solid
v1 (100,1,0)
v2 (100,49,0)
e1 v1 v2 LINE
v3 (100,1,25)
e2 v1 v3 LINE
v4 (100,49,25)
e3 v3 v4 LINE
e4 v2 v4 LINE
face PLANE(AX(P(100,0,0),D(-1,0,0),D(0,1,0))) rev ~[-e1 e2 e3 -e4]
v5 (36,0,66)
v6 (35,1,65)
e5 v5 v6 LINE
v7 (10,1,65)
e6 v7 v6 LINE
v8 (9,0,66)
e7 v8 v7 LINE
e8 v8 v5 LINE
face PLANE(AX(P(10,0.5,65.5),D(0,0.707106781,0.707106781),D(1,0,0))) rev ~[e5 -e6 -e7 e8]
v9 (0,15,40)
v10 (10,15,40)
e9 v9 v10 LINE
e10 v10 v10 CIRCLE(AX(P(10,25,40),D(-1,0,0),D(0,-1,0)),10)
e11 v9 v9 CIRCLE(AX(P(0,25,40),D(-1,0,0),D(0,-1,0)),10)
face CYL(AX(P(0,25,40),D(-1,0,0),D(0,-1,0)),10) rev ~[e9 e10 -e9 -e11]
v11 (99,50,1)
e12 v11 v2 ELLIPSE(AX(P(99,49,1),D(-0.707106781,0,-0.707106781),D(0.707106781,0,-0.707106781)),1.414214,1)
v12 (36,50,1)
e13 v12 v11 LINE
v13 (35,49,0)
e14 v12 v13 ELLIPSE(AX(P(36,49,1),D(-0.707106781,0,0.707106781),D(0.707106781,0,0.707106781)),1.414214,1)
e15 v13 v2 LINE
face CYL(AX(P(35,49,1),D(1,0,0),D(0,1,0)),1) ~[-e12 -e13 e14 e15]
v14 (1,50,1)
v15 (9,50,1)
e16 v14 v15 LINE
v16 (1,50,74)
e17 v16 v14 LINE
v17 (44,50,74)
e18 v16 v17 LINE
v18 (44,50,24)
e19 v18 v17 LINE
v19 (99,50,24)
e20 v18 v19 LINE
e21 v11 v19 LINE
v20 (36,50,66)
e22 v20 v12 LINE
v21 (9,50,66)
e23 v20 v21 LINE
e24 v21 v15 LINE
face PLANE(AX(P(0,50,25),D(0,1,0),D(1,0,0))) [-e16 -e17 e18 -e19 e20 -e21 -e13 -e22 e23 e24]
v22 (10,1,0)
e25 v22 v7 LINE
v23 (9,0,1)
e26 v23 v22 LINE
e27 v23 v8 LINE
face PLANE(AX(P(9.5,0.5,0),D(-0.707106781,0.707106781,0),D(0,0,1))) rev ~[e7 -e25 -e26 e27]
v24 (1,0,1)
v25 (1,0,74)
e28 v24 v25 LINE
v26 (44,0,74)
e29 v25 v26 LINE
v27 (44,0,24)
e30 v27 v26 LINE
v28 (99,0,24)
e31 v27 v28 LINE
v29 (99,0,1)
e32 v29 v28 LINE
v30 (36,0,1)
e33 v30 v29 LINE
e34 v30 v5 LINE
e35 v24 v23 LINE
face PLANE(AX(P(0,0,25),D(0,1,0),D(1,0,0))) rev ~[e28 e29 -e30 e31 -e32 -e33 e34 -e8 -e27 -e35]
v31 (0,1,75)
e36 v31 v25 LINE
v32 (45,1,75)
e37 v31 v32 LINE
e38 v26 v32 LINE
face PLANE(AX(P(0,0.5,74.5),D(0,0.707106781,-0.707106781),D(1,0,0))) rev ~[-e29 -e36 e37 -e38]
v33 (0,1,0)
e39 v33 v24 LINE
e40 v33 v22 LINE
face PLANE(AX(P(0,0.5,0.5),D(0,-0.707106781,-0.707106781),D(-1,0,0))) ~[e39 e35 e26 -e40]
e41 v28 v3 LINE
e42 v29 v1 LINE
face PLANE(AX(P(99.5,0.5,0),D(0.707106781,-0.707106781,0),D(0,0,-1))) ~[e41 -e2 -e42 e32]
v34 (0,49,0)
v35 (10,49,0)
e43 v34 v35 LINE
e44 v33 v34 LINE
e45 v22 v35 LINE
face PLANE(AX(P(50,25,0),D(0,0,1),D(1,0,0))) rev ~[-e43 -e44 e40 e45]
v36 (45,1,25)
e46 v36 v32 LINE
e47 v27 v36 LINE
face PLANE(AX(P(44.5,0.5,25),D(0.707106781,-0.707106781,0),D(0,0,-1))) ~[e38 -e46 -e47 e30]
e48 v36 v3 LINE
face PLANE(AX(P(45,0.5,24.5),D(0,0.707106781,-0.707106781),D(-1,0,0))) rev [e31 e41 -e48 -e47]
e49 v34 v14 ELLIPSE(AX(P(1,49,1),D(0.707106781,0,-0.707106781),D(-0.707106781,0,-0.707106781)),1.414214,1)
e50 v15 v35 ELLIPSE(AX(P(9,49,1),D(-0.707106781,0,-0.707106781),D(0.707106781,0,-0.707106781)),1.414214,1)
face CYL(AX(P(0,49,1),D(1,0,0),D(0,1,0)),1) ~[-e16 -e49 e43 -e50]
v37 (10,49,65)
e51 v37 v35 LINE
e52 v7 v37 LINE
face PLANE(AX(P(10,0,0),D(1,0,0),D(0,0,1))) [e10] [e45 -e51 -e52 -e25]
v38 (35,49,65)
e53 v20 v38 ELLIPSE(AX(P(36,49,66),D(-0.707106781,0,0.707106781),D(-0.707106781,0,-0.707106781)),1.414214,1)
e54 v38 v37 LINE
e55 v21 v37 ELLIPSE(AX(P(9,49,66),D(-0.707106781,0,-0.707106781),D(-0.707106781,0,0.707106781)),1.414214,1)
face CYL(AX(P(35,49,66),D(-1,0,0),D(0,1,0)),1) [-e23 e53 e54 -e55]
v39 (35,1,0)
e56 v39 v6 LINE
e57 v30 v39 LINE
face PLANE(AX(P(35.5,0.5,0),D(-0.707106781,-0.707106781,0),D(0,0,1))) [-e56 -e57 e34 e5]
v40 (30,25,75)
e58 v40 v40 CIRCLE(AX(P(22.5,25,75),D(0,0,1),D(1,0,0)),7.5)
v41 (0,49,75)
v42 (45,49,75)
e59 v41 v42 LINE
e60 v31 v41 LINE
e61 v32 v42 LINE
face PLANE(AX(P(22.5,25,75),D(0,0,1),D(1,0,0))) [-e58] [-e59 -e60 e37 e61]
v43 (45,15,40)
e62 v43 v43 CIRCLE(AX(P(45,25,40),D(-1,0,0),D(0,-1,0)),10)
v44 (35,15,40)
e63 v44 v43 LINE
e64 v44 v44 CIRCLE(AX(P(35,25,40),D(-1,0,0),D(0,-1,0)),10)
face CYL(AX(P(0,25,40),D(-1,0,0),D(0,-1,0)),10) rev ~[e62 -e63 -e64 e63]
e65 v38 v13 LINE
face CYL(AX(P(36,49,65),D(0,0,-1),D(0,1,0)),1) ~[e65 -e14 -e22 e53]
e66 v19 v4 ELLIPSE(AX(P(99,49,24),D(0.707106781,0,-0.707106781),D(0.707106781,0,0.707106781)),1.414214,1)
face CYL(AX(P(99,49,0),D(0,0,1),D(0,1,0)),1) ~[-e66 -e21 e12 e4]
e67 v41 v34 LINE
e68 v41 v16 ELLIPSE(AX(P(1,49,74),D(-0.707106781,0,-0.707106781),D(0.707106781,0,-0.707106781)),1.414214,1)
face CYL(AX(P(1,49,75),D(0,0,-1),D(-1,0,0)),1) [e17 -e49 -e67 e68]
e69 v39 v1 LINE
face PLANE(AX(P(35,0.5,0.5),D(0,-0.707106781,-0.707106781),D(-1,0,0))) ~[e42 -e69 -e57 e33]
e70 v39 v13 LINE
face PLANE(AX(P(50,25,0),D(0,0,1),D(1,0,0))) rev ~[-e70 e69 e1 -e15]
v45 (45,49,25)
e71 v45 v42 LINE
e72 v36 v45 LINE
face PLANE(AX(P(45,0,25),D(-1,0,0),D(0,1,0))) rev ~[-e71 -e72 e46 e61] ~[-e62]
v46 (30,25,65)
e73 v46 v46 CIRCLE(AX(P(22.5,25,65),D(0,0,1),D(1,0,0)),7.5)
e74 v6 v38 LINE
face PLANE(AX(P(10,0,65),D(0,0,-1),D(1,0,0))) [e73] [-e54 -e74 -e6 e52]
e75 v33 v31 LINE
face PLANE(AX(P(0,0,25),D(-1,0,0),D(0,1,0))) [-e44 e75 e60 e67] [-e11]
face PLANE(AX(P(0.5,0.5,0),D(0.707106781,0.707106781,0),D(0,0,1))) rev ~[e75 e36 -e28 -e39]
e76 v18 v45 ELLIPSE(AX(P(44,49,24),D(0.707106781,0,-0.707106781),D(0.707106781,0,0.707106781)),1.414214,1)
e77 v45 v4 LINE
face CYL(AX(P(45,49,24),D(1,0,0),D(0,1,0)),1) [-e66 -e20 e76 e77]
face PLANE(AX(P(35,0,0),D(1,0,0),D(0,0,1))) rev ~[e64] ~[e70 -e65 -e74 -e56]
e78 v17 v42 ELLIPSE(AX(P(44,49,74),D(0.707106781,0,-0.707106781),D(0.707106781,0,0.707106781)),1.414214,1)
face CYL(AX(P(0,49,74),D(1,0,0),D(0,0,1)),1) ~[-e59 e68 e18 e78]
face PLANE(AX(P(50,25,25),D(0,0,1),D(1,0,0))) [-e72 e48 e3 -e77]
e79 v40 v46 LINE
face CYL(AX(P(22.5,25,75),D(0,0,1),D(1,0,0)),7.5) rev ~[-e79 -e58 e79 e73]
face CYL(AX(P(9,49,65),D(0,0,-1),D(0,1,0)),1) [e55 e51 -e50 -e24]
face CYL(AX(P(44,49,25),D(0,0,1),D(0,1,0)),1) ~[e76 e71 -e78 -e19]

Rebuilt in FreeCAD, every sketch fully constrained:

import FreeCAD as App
import Part
import Sketcher
from FreeCAD import Vector


def edges_at(feature, points):
    """Names of the edges that pass closest to the given points."""
    edges = feature.Shape.Edges
    near = lambda p: min(range(len(edges)), key=lambda i: edges[i].distToShape(Part.Vertex(*p))[0])
    return sorted({f"Edge{near(p) + 1}" for p in points})

doc = App.newDocument("Part")
body = doc.addObject("PartDesign::Body", "Body")

# Sketch on XY plane
sketch1 = body.newObject("Sketcher::SketchObject", "Sketch")
sketch1.AttachmentSupport = (doc.getObject("XY_Plane"), [""])
sketch1.MapMode = "FlatFace"
sketch1.addGeometry([
    Part.LineSegment(Vector(0, 50, 0), Vector(0, 0, 0)),
    Part.LineSegment(Vector(0, 0, 0), Vector(100, 0, 0)),
    Part.LineSegment(Vector(100, 0, 0), Vector(100, 50, 0)),
    Part.LineSegment(Vector(100, 50, 0), Vector(0, 50, 0)),
], False)
sketch1.addConstraint([
    Sketcher.Constraint("Coincident", 0, 2, 1, 1),
    Sketcher.Constraint("Coincident", 1, 2, 2, 1),
    Sketcher.Constraint("Coincident", 2, 2, 3, 1),
    Sketcher.Constraint("Coincident", 3, 2, 0, 1),
    Sketcher.Constraint("Vertical", 0),
    Sketcher.Constraint("Horizontal", 1),
    Sketcher.Constraint("Vertical", 2),
    Sketcher.Constraint("Horizontal", 3),
    Sketcher.Constraint("Coincident", 0, 2, -1, 1),
    Sketcher.Constraint("DistanceX", 1, 1, 1, 2, 100.0),
    Sketcher.Constraint("DistanceY", 0, 2, 0, 1, 50.0),
])
pad1 = body.newObject("PartDesign::Pad", "Pad")
pad1.Profile = sketch1
pad1.Length = 25

# Sketch on XY plane
sketch2 = body.newObject("Sketcher::SketchObject", "Sketch001")
sketch2.AttachmentSupport = (doc.getObject("XY_Plane"), [""])
sketch2.MapMode = "FlatFace"
sketch2.AttachmentOffset = App.Placement(Vector(0, 0, 25), App.Rotation())
sketch2.addGeometry([
    Part.LineSegment(Vector(0, 50, 0), Vector(0, 0, 0)),
    Part.LineSegment(Vector(0, 0, 0), Vector(45, 0, 0)),
    Part.LineSegment(Vector(45, 0, 0), Vector(45, 50, 0)),
    Part.LineSegment(Vector(45, 50, 0), Vector(0, 50, 0)),
], False)
sketch2.addConstraint([
    Sketcher.Constraint("Coincident", 0, 2, 1, 1),
    Sketcher.Constraint("Coincident", 1, 2, 2, 1),
    Sketcher.Constraint("Coincident", 2, 2, 3, 1),
    Sketcher.Constraint("Coincident", 3, 2, 0, 1),
    Sketcher.Constraint("Vertical", 0),
    Sketcher.Constraint("Horizontal", 1),
    Sketcher.Constraint("Vertical", 2),
    Sketcher.Constraint("Horizontal", 3),
    Sketcher.Constraint("Coincident", 0, 2, -1, 1),
    Sketcher.Constraint("DistanceX", 1, 1, 1, 2, 45.0),
    Sketcher.Constraint("DistanceY", 0, 2, 0, 1, 50.0),
])
pad2 = body.newObject("PartDesign::Pad", "Pad001")
pad2.Profile = sketch2
pad2.Length = 50

# Sketch on XZ plane
sketch3 = body.newObject("Sketcher::SketchObject", "Sketch002")
sketch3.AttachmentSupport = (doc.getObject("XZ_Plane"), [""])
sketch3.MapMode = "FlatFace"
sketch3.addGeometry([
    Part.LineSegment(Vector(10, 65, 0), Vector(10, 0, 0)),
    Part.LineSegment(Vector(10, 0, 0), Vector(35, 0, 0)),
    Part.LineSegment(Vector(35, 0, 0), Vector(35, 65, 0)),
    Part.LineSegment(Vector(35, 65, 0), Vector(10, 65, 0)),
], False)
sketch3.addConstraint([
    Sketcher.Constraint("Coincident", 0, 2, 1, 1),
    Sketcher.Constraint("Coincident", 1, 2, 2, 1),
    Sketcher.Constraint("Coincident", 2, 2, 3, 1),
    Sketcher.Constraint("Coincident", 3, 2, 0, 1),
    Sketcher.Constraint("Vertical", 0),
    Sketcher.Constraint("Horizontal", 1),
    Sketcher.Constraint("Vertical", 2),
    Sketcher.Constraint("Horizontal", 3),
    Sketcher.Constraint("PointOnObject", 0, 2, -1),
    Sketcher.Constraint("DistanceX", 1, 1, 1, 2, 25.0),
    Sketcher.Constraint("DistanceY", 0, 2, 0, 1, 65.0),
    Sketcher.Constraint("DistanceX", -1, 1, 0, 2, 10.0),
])
pocket1 = body.newObject("PartDesign::Pocket", "Pocket")
pocket1.Profile = sketch3
pocket1.Type = "ThroughAll"

# Sketch on YZ plane
sketch4 = body.newObject("Sketcher::SketchObject", "Sketch003")
sketch4.AttachmentSupport = (doc.getObject("YZ_Plane"), [""])
sketch4.MapMode = "FlatFace"
sketch4.addGeometry(Part.Circle(Vector(25, 40, 0), Vector(0, 0, 1), 10), False)
sketch4.addConstraint([
    Sketcher.Constraint("Diameter", 0, 20.0),
    Sketcher.Constraint("DistanceX", -1, 1, 0, 3, 25.0),
    Sketcher.Constraint("DistanceY", -1, 1, 0, 3, 40.0),
])
pocket2 = body.newObject("PartDesign::Pocket", "Pocket001")
pocket2.Profile = sketch4
pocket2.Type = "ThroughAll"
pocket2.Reversed = True

# Sketch on XY plane
sketch5 = body.newObject("Sketcher::SketchObject", "Sketch004")
sketch5.AttachmentSupport = (doc.getObject("XY_Plane"), [""])
sketch5.MapMode = "FlatFace"
sketch5.AttachmentOffset = App.Placement(Vector(0, 0, 75), App.Rotation())
sketch5.addGeometry(Part.Circle(Vector(22, 25, 0), Vector(0, 0, 1), 8), False)
sketch5.addConstraint([
    Sketcher.Constraint("Diameter", 0, 15.0),
    Sketcher.Constraint("DistanceY", -1, 1, 0, 3, 25.0),
    Sketcher.Constraint("DistanceX", -1, 1, 0, 3, 22.5),
])
pocket3 = body.newObject("PartDesign::Pocket", "Pocket002")
pocket3.Profile = sketch5
pocket3.Type = "ThroughAll"
doc.recompute()

chamfer = body.newObject("PartDesign::Chamfer", "Chamfer")
chamfer.Base = (pocket3, edges_at(pocket3, [
    (0, 0, 37.5),
    (35, 0, 32.5),
    (22.5, 0, 65),
    (5, 0, 0),
    (10, 0, 32.5),
    (67.5, 0, 0),
    (100, 0, 12.5),
    (72.5, 0, 25),
    (45, 0, 50),
    (22.5, 0, 75),
]))
chamfer.Size = 1
doc.recompute()

fillet = body.newObject("PartDesign::Fillet", "Fillet")
fillet.Base = (chamfer, edges_at(chamfer, [
    (72.5, 50, 25),
    (45, 50, 50),
    (22.5, 50, 75),
    (0, 50, 37.5),
    (67.5, 50, 0),
    (35, 50, 32.5),
    (22.5, 50, 65),
    (10, 50, 32.5),
    (5, 50, 0),
    (100, 50, 12.5),
]))
fillet.Radius = 1

doc.recompute()
